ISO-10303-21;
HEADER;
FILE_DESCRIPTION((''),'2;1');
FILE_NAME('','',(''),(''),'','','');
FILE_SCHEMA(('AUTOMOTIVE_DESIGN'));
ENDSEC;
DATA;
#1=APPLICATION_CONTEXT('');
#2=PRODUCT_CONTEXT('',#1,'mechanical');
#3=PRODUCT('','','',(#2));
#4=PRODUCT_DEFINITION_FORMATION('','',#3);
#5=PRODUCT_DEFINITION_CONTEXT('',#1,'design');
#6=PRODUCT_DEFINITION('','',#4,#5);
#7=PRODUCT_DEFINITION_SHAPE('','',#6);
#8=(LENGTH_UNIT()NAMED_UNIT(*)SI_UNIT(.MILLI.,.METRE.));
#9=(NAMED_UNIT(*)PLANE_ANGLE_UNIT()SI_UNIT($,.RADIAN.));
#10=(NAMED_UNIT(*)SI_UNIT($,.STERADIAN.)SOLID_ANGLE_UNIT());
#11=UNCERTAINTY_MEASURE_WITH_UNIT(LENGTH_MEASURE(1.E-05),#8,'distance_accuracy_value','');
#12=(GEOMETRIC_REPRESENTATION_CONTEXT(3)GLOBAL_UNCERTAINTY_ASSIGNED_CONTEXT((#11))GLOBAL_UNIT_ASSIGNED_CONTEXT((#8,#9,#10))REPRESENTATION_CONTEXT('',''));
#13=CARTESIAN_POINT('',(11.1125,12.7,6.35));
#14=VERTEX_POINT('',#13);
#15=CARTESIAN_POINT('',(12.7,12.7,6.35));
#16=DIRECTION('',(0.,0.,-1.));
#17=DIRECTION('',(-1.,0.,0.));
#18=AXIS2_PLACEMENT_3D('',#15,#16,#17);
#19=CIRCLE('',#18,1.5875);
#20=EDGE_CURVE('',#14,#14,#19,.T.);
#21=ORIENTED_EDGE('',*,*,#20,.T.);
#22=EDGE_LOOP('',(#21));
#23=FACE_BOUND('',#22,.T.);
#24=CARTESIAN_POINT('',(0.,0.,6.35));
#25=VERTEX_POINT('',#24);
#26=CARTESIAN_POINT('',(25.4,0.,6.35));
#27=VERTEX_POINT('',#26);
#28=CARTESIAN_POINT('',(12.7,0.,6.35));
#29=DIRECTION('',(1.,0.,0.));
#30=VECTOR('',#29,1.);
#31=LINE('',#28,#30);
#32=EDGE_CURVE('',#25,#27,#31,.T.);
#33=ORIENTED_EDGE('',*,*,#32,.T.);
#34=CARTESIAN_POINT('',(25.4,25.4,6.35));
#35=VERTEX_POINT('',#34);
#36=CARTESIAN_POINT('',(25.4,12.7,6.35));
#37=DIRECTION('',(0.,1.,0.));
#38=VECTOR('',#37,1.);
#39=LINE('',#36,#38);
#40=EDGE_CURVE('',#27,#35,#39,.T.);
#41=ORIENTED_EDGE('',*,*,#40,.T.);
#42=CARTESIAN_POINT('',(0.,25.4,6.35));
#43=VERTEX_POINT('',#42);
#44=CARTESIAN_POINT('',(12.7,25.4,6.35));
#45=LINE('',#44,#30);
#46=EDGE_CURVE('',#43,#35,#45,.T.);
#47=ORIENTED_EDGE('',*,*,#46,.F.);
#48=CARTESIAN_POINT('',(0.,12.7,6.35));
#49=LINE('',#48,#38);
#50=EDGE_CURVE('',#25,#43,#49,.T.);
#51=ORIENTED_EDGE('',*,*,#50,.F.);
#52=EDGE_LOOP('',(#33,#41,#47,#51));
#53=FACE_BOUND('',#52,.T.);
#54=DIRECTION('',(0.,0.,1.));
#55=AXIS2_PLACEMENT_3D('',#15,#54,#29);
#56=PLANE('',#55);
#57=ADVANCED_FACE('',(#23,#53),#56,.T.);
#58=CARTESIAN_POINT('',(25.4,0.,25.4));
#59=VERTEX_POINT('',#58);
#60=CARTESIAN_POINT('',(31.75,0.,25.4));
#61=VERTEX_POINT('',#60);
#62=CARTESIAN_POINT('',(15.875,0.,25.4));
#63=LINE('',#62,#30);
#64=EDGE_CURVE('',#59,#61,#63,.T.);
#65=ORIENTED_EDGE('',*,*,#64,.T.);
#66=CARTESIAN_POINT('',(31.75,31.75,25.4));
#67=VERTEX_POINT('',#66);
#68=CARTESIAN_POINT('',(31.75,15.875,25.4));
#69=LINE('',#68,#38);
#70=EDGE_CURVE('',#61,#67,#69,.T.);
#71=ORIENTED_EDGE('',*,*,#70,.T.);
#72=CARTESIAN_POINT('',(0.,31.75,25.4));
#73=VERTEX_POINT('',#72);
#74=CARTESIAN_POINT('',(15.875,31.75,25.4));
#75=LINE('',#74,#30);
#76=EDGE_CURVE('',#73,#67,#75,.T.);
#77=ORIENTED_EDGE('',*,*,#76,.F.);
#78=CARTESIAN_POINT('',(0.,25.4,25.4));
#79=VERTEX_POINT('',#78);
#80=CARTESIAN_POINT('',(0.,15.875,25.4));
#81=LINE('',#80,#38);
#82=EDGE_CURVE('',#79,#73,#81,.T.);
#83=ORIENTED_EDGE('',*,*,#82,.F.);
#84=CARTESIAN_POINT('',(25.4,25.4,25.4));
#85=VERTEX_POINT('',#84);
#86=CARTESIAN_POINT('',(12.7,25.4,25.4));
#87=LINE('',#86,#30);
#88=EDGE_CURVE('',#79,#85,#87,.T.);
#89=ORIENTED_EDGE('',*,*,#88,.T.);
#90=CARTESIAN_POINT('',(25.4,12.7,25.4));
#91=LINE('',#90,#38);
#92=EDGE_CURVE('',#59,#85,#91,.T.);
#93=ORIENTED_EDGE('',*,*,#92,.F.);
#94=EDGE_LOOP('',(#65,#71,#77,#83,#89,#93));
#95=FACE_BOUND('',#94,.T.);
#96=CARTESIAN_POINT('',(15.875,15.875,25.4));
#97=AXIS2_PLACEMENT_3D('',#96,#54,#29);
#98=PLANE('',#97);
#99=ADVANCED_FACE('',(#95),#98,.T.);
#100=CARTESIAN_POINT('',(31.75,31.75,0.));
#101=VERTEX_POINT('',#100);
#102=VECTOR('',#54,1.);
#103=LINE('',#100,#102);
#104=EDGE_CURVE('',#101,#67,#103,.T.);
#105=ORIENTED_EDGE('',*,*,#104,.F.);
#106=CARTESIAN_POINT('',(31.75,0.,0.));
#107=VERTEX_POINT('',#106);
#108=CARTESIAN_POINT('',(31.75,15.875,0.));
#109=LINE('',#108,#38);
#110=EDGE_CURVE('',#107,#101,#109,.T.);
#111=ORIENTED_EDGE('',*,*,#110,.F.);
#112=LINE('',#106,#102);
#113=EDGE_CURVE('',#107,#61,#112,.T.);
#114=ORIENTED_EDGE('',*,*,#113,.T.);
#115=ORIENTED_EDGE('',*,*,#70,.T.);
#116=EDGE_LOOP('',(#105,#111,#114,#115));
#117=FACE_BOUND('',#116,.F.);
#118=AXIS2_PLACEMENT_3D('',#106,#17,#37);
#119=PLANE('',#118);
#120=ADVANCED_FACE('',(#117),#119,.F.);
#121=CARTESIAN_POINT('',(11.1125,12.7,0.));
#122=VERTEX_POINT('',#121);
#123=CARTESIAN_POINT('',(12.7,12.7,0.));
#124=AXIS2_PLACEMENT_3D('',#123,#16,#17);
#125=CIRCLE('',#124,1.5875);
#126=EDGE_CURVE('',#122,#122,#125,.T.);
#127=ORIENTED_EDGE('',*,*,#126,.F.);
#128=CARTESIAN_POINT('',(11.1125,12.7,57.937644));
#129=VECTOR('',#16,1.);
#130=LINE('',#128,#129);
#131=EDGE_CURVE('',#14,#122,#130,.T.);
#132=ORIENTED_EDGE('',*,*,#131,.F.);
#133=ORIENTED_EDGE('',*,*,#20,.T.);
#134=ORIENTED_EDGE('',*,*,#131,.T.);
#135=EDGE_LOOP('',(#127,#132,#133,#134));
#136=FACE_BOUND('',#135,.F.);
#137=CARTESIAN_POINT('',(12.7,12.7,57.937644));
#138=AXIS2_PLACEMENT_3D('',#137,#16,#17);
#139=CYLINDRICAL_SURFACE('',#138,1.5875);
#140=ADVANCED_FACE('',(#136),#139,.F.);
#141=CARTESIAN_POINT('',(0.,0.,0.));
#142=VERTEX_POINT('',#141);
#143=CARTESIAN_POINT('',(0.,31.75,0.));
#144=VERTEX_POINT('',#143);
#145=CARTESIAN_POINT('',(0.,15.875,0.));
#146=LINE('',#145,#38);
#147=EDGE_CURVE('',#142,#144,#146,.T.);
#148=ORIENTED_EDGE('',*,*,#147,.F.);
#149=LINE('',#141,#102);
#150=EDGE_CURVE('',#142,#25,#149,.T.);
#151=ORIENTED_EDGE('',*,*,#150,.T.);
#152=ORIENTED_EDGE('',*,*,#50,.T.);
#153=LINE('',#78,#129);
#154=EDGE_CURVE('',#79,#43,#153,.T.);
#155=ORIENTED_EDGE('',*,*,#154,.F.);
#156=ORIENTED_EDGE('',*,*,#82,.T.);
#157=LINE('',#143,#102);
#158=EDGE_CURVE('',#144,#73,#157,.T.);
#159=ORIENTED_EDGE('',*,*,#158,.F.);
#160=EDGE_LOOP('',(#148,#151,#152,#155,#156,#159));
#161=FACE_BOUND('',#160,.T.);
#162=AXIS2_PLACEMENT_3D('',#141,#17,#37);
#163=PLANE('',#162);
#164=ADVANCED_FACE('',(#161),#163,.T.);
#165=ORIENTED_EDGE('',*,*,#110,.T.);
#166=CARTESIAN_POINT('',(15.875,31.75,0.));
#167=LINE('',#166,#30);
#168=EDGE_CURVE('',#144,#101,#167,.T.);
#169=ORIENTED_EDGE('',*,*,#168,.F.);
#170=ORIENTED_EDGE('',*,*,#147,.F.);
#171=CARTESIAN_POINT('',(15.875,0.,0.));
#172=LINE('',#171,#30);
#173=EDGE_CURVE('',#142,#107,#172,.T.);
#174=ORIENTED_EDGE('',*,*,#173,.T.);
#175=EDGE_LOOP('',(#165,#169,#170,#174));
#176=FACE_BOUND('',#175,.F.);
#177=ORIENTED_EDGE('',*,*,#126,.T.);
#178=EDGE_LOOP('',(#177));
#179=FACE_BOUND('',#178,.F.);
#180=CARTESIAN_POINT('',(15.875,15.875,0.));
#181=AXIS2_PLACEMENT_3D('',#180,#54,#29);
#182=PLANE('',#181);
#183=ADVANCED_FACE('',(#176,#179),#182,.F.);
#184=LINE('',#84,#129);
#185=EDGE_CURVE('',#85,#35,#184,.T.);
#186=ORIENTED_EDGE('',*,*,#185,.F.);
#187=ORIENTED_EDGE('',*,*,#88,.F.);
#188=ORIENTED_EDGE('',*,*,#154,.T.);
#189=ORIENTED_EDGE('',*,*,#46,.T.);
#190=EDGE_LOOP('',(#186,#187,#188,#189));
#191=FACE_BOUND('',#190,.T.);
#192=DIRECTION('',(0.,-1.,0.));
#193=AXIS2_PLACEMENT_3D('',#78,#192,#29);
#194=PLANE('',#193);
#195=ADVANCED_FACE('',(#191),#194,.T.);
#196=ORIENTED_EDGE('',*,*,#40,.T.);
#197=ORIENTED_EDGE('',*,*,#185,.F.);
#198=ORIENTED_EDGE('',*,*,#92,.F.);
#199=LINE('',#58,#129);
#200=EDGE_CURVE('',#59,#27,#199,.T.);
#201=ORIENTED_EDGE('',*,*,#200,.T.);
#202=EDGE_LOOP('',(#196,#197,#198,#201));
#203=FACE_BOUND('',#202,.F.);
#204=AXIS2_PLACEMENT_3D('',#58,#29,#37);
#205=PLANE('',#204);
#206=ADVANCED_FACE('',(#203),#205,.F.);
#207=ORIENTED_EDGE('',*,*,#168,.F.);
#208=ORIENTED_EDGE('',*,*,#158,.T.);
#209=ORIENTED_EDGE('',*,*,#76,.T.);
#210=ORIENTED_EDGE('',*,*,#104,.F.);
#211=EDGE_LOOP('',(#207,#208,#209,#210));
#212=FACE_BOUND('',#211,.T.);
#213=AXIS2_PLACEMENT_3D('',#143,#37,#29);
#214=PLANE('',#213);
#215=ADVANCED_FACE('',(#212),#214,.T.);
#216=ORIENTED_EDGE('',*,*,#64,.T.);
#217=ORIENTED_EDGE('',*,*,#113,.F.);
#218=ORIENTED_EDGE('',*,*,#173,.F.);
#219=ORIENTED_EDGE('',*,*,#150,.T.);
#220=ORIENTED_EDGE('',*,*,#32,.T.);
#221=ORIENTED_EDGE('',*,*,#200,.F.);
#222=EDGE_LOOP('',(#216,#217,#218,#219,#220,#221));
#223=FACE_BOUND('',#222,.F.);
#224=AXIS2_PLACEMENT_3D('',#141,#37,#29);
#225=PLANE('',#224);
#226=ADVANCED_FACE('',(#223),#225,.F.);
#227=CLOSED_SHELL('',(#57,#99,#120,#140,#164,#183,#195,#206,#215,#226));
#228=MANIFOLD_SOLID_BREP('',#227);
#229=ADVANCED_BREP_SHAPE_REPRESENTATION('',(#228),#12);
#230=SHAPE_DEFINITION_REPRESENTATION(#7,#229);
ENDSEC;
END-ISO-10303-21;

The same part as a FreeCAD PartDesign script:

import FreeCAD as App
import Part
import Sketcher
Q = App.Units.Quantity


def add_polygon(sketch, points):
    """Adds a closed chain of lines whose ends are joined by coincident constraints."""
    first, n = sketch.GeometryCount, len(points)
    for a, b in zip(points, points[1:] + points[:1]):
        sketch.addGeometry(Part.LineSegment(App.Vector(*a, 0), App.Vector(*b, 0)), False)
    for i in range(n):
        sketch.addConstraint(Sketcher.Constraint("Coincident", first + i, 2, first + (i + 1) % n, 1))

doc = App.newDocument("Part")
body = doc.addObject("PartDesign::Body", "Body")

# Sketch on XY plane
sketch1 = doc.addObject("Sketcher::SketchObject", "Sketch")
body.addObject(sketch1)
sketch1.AttachmentSupport = (doc.XY_Plane, [""])
sketch1.MapMode = "FlatFace"
add_polygon(sketch1, [(0, 32), (0, 0), (32, 0), (32, 32)])  # lines 0-3
sketch1.addConstraint([
    Sketcher.Constraint("Vertical", 0),
    Sketcher.Constraint("Horizontal", 1),
    Sketcher.Constraint("Vertical", 2),
    Sketcher.Constraint("Horizontal", 3),
    Sketcher.Constraint("Coincident", 0, 2, -1, 1),
    Sketcher.Constraint("Equal", 3, 0),
    Sketcher.Constraint("DistanceX", 1, 1, 1, 2, Q("1.25 in")),
])
pad1 = doc.addObject("PartDesign::Pad", "Pad")
body.addObject(pad1)
pad1.Profile = sketch1
pad1.Length = Q("1 in")

# Sketch on XY plane
sketch2 = doc.addObject("Sketcher::SketchObject", "Sketch001")
body.addObject(sketch2)
sketch2.AttachmentSupport = (doc.XY_Plane, [""])
sketch2.MapMode = "FlatFace"
sketch2.AttachmentOffset = App.Placement(App.Vector(0, 0, 1 * 25.4), App.Rotation())
add_polygon(sketch2, [(0, 25), (0, 0), (25, 0), (25, 25)])  # lines 0-3
sketch2.addConstraint([
    Sketcher.Constraint("Vertical", 0),
    Sketcher.Constraint("Horizontal", 1),
    Sketcher.Constraint("Vertical", 2),
    Sketcher.Constraint("Horizontal", 3),
    Sketcher.Constraint("Coincident", 0, 2, -1, 1),
    Sketcher.Constraint("Equal", 3, 0),
    Sketcher.Constraint("DistanceX", 1, 1, 1, 2, Q("1 in")),
])
pocket1 = doc.addObject("PartDesign::Pocket", "Pocket")
body.addObject(pocket1)
pocket1.Profile = sketch2
pocket1.Length = Q("0.75 in")

# Sketch on XY plane
sketch3 = doc.addObject("Sketcher::SketchObject", "Sketch002")
body.addObject(sketch3)
sketch3.AttachmentSupport = (doc.XY_Plane, [""])
sketch3.MapMode = "FlatFace"
sketch3.AttachmentOffset = App.Placement(App.Vector(0, 0, 0.25 * 25.4), App.Rotation())
sketch3.addGeometry(Part.Circle(App.Vector(12.7, 12.7, 0), App.Vector(0, 0, 1), 1.6), False)
sketch3.addConstraint([
    Sketcher.Constraint("Diameter", 0, Q("0.125 in")),
    Sketcher.Constraint("DistanceX", -1, 1, 0, 3, Q("0.5 in")),
    Sketcher.Constraint("DistanceY", -1, 1, 0, 3, Q("0.5 in")),
])
doc.recompute()
hole = doc.addObject("PartDesign::Hole", "Hole")
body.addObject(hole)
hole.Profile = sketch3
hole.ThreadType = "None"
hole.Diameter = Q("0.125 in")
hole.DepthType = "ThroughAll"

doc.recompute()
